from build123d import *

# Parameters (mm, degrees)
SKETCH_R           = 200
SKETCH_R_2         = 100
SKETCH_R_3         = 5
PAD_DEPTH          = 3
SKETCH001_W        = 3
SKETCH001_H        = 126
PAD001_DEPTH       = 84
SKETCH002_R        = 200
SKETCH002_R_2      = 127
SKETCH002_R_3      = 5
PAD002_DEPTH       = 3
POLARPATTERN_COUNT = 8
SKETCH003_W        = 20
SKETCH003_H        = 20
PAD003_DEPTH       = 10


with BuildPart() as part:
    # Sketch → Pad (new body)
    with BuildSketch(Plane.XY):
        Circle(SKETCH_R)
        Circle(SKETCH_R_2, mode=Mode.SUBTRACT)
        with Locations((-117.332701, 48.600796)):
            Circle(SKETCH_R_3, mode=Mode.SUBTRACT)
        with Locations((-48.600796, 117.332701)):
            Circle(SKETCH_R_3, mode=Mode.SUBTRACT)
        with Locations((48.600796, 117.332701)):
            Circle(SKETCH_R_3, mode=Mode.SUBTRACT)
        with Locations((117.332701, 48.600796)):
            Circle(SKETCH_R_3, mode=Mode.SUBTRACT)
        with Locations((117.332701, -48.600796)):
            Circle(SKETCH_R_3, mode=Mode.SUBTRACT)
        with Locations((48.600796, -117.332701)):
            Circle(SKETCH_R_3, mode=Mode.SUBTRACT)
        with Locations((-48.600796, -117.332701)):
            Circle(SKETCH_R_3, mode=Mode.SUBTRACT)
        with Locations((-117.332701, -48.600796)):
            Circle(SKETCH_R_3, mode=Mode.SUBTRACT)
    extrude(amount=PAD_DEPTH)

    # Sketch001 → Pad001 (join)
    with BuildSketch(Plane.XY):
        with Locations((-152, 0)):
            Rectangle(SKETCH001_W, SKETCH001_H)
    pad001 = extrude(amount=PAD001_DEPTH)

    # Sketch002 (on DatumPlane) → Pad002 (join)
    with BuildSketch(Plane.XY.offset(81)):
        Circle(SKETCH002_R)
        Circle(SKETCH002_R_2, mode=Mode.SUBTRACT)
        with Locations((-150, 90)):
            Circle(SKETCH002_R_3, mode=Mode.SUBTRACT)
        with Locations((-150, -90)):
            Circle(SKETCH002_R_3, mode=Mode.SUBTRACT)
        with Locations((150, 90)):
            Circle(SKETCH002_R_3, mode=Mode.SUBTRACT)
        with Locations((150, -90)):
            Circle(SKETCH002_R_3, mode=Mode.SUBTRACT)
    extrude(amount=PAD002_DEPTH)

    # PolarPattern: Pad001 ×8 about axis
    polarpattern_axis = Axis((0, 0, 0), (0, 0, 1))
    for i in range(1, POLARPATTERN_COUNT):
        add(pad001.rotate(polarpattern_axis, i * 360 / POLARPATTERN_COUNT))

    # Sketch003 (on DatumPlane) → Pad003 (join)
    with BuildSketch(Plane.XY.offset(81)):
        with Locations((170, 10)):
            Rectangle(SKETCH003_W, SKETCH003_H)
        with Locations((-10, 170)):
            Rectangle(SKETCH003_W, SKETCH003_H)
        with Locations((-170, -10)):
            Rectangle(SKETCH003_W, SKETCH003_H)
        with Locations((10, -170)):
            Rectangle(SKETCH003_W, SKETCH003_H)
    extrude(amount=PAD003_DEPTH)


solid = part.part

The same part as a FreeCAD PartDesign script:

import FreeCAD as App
import Part
import Sketcher

V = App.Vector

doc = App.newDocument("Part")
body = doc.addObject("PartDesign::Body", "Body")

sketch1 = doc.addObject("Sketcher::SketchObject", "Sketch")
body.addObject(sketch1)
sketch1.AttachmentSupport = (doc.XY_Plane, [""])
sketch1.MapMode = "FlatFace"
sketch1.addGeometry(Part.Circle(V(0, 0, 0), V(0, 0, 1), 200), False)
sketch1.addGeometry(Part.Circle(V(-48.600796, -117.332701, 0), V(0, 0, 1), 5), False)
sketch1.addGeometry(Part.Circle(V(-117.332701, -48.600796, 0), V(0, 0, 1), 5), False)
sketch1.addGeometry(Part.Circle(V(48.600796, -117.332701, 0), V(0, 0, 1), 5), False)
sketch1.addGeometry(Part.Circle(V(117.332701, -48.600796, 0), V(0, 0, 1), 5), False)
sketch1.addGeometry(Part.Circle(V(-117.332701, 48.600796, 0), V(0, 0, 1), 5), False)
sketch1.addGeometry(Part.Circle(V(-48.600796, 117.332701, 0), V(0, 0, 1), 5), False)
sketch1.addGeometry(Part.Circle(V(0, 0, 0), V(0, 0, 1), 100), False)
sketch1.addGeometry(Part.Circle(V(117.332701, 48.600796, 0), V(0, 0, 1), 5), False)
sketch1.addGeometry(Part.Circle(V(48.600796, 117.332701, 0), V(0, 0, 1), 5), False)
sketch1.addConstraint(Sketcher.Constraint("Coincident", 0, 3, -1, 1))
sketch1.addConstraint(Sketcher.Constraint("Coincident", 7, 3, -1, 1))
sketch1.addConstraint(Sketcher.Constraint("Equal", 1, 2))
sketch1.addConstraint(Sketcher.Constraint("Equal", 2, 3))
sketch1.addConstraint(Sketcher.Constraint("Equal", 3, 4))
sketch1.addConstraint(Sketcher.Constraint("Equal", 4, 5))
sketch1.addConstraint(Sketcher.Constraint("Equal", 5, 6))
sketch1.addConstraint(Sketcher.Constraint("Equal", 6, 8))
sketch1.addConstraint(Sketcher.Constraint("Equal", 8, 9))
sketch1.addConstraint(Sketcher.Constraint("Symmetric", 4, 3, 5, 3, -1, 1))
sketch1.addConstraint(Sketcher.Constraint("Symmetric", 3, 3, 6, 3, -1, 1))
sketch1.addConstraint(Sketcher.Constraint("Symmetric", 2, 3, 8, 3, -1, 1))
sketch1.addConstraint(Sketcher.Constraint("Symmetric", 1, 3, 9, 3, -1, 1))
sketch1.addConstraint(Sketcher.Constraint("Symmetric", 1, 3, 3, 3, -2))
sketch1.addConstraint(Sketcher.Constraint("Symmetric", 2, 3, 4, 3, -2))
sketch1.addConstraint(Sketcher.Constraint("Diameter", 0, 400.0))
sketch1.addConstraint(Sketcher.Constraint("Diameter", 1, 10.0))
sketch1.addConstraint(Sketcher.Constraint("Diameter", 7, 200.0))
sketch1.addConstraint(Sketcher.Constraint("DistanceY", 1, 3, -1, 1, 117.332701))
sketch1.addConstraint(Sketcher.Constraint("DistanceX", 2, 3, -1, 1, 117.332701))
sketch1.addConstraint(Sketcher.Constraint("DistanceX", 1, 3, -1, 1, 48.600796))
sketch1.addConstraint(Sketcher.Constraint("DistanceY", 2, 3, -1, 1, 48.600796))
pad1 = doc.addObject("PartDesign::Pad", "Pad")
body.addObject(pad1)
pad1.Profile = sketch1
pad1.Length = 3

sketch2 = doc.addObject("Sketcher::SketchObject", "Sketch001")
body.addObject(sketch2)
sketch2.AttachmentSupport = (doc.XY_Plane, [""])
sketch2.MapMode = "FlatFace"
sketch2.addGeometry(Part.LineSegment(V(-153.5, 63, 0), V(-153.5, -63, 0)), False)
sketch2.addGeometry(Part.LineSegment(V(-153.5, -63, 0), V(-150.5, -63, 0)), False)
sketch2.addGeometry(Part.LineSegment(V(-150.5, -63, 0), V(-150.5, 63, 0)), False)
sketch2.addGeometry(Part.LineSegment(V(-150.5, 63, 0), V(-153.5, 63, 0)), False)
sketch2.addConstraint(Sketcher.Constraint("Coincident", 0, 2, 1, 1))
sketch2.addConstraint(Sketcher.Constraint("Coincident", 1, 2, 2, 1))
sketch2.addConstraint(Sketcher.Constraint("Coincident", 2, 2, 3, 1))
sketch2.addConstraint(Sketcher.Constraint("Coincident", 3, 2, 0, 1))
sketch2.addConstraint(Sketcher.Constraint("Vertical", 0))
sketch2.addConstraint(Sketcher.Constraint("Horizontal", 1))
sketch2.addConstraint(Sketcher.Constraint("Vertical", 2))
sketch2.addConstraint(Sketcher.Constraint("Horizontal", 3))
sketch2.addConstraint(Sketcher.Constraint("DistanceX", 1, 1, 1, 2, 3.0))
sketch2.addConstraint(Sketcher.Constraint("DistanceY", 0, 2, 0, 1, 126.0))
sketch2.addConstraint(Sketcher.Constraint("DistanceY", 0, 2, -1, 1, 63.0))
sketch2.addConstraint(Sketcher.Constraint("DistanceX", 0, 2, -1, 1, 153.5))
pad2 = doc.addObject("PartDesign::Pad", "Pad001")
body.addObject(pad2)
pad2.Profile = sketch2
pad2.Length = 84

sketch3 = doc.addObject("Sketcher::SketchObject", "Sketch002")
body.addObject(sketch3)
sketch3.AttachmentSupport = (doc.XY_Plane, [""])
sketch3.MapMode = "FlatFace"
sketch3.AttachmentOffset = App.Placement(V(0, 0, 81), App.Rotation())
sketch3.addGeometry(Part.Circle(V(0, 0, 0), V(0, 0, 1), 200), False)
sketch3.addGeometry(Part.Circle(V(-150, -90, 0), V(0, 0, 1), 5), False)
sketch3.addGeometry(Part.Circle(V(150, -90, 0), V(0, 0, 1), 5), False)
sketch3.addGeometry(Part.Circle(V(-150, 90, 0), V(0, 0, 1), 5), False)
sketch3.addGeometry(Part.Circle(V(0, 0, 0), V(0, 0, 1), 127), False)
sketch3.addGeometry(Part.Circle(V(150, 90, 0), V(0, 0, 1), 5), False)
sketch3.addConstraint(Sketcher.Constraint("Coincident", 0, 3, -1, 1))
sketch3.addConstraint(Sketcher.Constraint("Coincident", 4, 3, -1, 1))
sketch3.addConstraint(Sketcher.Constraint("Equal", 1, 2))
sketch3.addConstraint(Sketcher.Constraint("Equal", 2, 3))
sketch3.addConstraint(Sketcher.Constraint("Equal", 3, 5))
sketch3.addConstraint(Sketcher.Constraint("Symmetric", 2, 3, 3, 3, -1, 1))
sketch3.addConstraint(Sketcher.Constraint("Symmetric", 1, 3, 5, 3, -1, 1))
sketch3.addConstraint(Sketcher.Constraint("Symmetric", 1, 3, 2, 3, -2))
sketch3.addConstraint(Sketcher.Constraint("Diameter", 0, 400.0))
sketch3.addConstraint(Sketcher.Constraint("Diameter", 1, 10.0))
sketch3.addConstraint(Sketcher.Constraint("Diameter", 4, 254.0))
sketch3.addConstraint(Sketcher.Constraint("DistanceX", 1, 3, -1, 1, 150.0))
sketch3.addConstraint(Sketcher.Constraint("DistanceY", 1, 3, -1, 1, 90.0))
pad3 = doc.addObject("PartDesign::Pad", "Pad002")
body.addObject(pad3)
pad3.Profile = sketch3
pad3.Length = 3
doc.recompute()

polarpattern = doc.addObject("PartDesign::PolarPattern", "PolarPattern")
body.addObject(polarpattern)
polarpattern.Originals = [pad2]
polarpattern.Axis = (doc.Z_Axis, [""])
polarpattern.Angle = 360
polarpattern.Occurrences = 8
body.Tip = polarpattern

sketch4 = doc.addObject("Sketcher::SketchObject", "Sketch003")
body.addObject(sketch4)
sketch4.AttachmentSupport = (doc.XY_Plane, [""])
sketch4.MapMode = "FlatFace"
sketch4.AttachmentOffset = App.Placement(V(0, 0, 81), App.Rotation())
sketch4.addGeometry(Part.LineSegment(V(160, 20, 0), V(160, 0, 0)), False)
sketch4.addGeometry(Part.LineSegment(V(160, 0, 0), V(180, 0, 0)), False)
sketch4.addGeometry(Part.LineSegment(V(180, 0, 0), V(180, 20, 0)), False)
sketch4.addGeometry(Part.LineSegment(V(180, 20, 0), V(160, 20, 0)), False)
sketch4.addGeometry(Part.LineSegment(V(-20, 180, 0), V(-20, 160, 0)), False)
sketch4.addGeometry(Part.LineSegment(V(-20, 160, 0), V(0, 160, 0)), False)
sketch4.addGeometry(Part.LineSegment(V(0, 160, 0), V(0, 180, 0)), False)
sketch4.addGeometry(Part.LineSegment(V(0, 180, 0), V(-20, 180, 0)), False)
sketch4.addGeometry(Part.LineSegment(V(-180, 0, 0), V(-180, -20, 0)), False)
sketch4.addGeometry(Part.LineSegment(V(-180, -20, 0), V(-160, -20, 0)), False)
sketch4.addGeometry(Part.LineSegment(V(-160, -20, 0), V(-160, 0, 0)), False)
sketch4.addGeometry(Part.LineSegment(V(-160, 0, 0), V(-180, 0, 0)), False)
sketch4.addGeometry(Part.LineSegment(V(0, -160, 0), V(0, -180, 0)), False)
sketch4.addGeometry(Part.LineSegment(V(0, -180, 0), V(20, -180, 0)), False)
sketch4.addGeometry(Part.LineSegment(V(20, -180, 0), V(20, -160, 0)), False)
sketch4.addGeometry(Part.LineSegment(V(20, -160, 0), V(0, -160, 0)), False)
sketch4.addConstraint(Sketcher.Constraint("Coincident", 0, 2, 1, 1))
sketch4.addConstraint(Sketcher.Constraint("Coincident", 1, 2, 2, 1))
sketch4.addConstraint(Sketcher.Constraint("Coincident", 2, 2, 3, 1))
sketch4.addConstraint(Sketcher.Constraint("Coincident", 3, 2, 0, 1))
sketch4.addConstraint(Sketcher.Constraint("Coincident", 4, 2, 5, 1))
sketch4.addConstraint(Sketcher.Constraint("Coincident", 5, 2, 6, 1))
sketch4.addConstraint(Sketcher.Constraint("Coincident", 6, 2, 7, 1))
sketch4.addConstraint(Sketcher.Constraint("Coincident", 7, 2, 4, 1))
sketch4.addConstraint(Sketcher.Constraint("Coincident", 8, 2, 9, 1))
sketch4.addConstraint(Sketcher.Constraint("Coincident", 9, 2, 10, 1))
sketch4.addConstraint(Sketcher.Constraint("Coincident", 10, 2, 11, 1))
sketch4.addConstraint(Sketcher.Constraint("Coincident", 11, 2, 8, 1))
sketch4.addConstraint(Sketcher.Constraint("Coincident", 12, 2, 13, 1))
sketch4.addConstraint(Sketcher.Constraint("Coincident", 13, 2, 14, 1))
sketch4.addConstraint(Sketcher.Constraint("Coincident", 14, 2, 15, 1))
sketch4.addConstraint(Sketcher.Constraint("Coincident", 15, 2, 12, 1))
sketch4.addConstraint(Sketcher.Constraint("Vertical", 0))
sketch4.addConstraint(Sketcher.Constraint("Horizontal", 1))
sketch4.addConstraint(Sketcher.Constraint("Vertical", 2))
sketch4.addConstraint(Sketcher.Constraint("Horizontal", 3))
sketch4.addConstraint(Sketcher.Constraint("Vertical", 4))
sketch4.addConstraint(Sketcher.Constraint("Horizontal", 5))
sketch4.addConstraint(Sketcher.Constraint("Vertical", 6))
sketch4.addConstraint(Sketcher.Constraint("Horizontal", 7))
sketch4.addConstraint(Sketcher.Constraint("Vertical", 8))
sketch4.addConstraint(Sketcher.Constraint("Horizontal", 9))
sketch4.addConstraint(Sketcher.Constraint("Vertical", 10))
sketch4.addConstraint(Sketcher.Constraint("Horizontal", 11))
sketch4.addConstraint(Sketcher.Constraint("Vertical", 12))
sketch4.addConstraint(Sketcher.Constraint("Horizontal", 13))
sketch4.addConstraint(Sketcher.Constraint("Vertical", 14))
sketch4.addConstraint(Sketcher.Constraint("Horizontal", 15))
sketch4.addConstraint(Sketcher.Constraint("Symmetric", 2, 2, 8, 2, -1, 1))
sketch4.addConstraint(Sketcher.Constraint("Symmetric", 0, 2, 10, 2, -1, 1))
sketch4.addConstraint(Sketcher.Constraint("Symmetric", 6, 2, 12, 2, -1, 1))
sketch4.addConstraint(Sketcher.Constraint("Symmetric", 4, 2, 14, 2, -1, 1))
sketch4.addConstraint(Sketcher.Constraint("PointOnObject", 0, 2, -1))
sketch4.addConstraint(Sketcher.Constraint("PointOnObject", 5, 2, -2))
sketch4.addConstraint(Sketcher.Constraint("Equal", 3, 5))
sketch4.addConstraint(Sketcher.Constraint("Equal", 15, 0))
sketch4.addConstraint(Sketcher.Constraint("Equal", 2, 4))
sketch4.addConstraint(Sketcher.Constraint("DistanceX", 1, 1, 1, 2, 20.0))
sketch4.addConstraint(Sketcher.Constraint("DistanceX", -1, 1, 0, 2, 160.0))
sketch4.addConstraint(Sketcher.Constraint("DistanceY", -1, 1, 4, 2, 160.0))
pad4 = doc.addObject("PartDesign::Pad", "Pad003")
body.addObject(pad4)
pad4.Profile = sketch4
pad4.Length = 10

doc.recompute()
